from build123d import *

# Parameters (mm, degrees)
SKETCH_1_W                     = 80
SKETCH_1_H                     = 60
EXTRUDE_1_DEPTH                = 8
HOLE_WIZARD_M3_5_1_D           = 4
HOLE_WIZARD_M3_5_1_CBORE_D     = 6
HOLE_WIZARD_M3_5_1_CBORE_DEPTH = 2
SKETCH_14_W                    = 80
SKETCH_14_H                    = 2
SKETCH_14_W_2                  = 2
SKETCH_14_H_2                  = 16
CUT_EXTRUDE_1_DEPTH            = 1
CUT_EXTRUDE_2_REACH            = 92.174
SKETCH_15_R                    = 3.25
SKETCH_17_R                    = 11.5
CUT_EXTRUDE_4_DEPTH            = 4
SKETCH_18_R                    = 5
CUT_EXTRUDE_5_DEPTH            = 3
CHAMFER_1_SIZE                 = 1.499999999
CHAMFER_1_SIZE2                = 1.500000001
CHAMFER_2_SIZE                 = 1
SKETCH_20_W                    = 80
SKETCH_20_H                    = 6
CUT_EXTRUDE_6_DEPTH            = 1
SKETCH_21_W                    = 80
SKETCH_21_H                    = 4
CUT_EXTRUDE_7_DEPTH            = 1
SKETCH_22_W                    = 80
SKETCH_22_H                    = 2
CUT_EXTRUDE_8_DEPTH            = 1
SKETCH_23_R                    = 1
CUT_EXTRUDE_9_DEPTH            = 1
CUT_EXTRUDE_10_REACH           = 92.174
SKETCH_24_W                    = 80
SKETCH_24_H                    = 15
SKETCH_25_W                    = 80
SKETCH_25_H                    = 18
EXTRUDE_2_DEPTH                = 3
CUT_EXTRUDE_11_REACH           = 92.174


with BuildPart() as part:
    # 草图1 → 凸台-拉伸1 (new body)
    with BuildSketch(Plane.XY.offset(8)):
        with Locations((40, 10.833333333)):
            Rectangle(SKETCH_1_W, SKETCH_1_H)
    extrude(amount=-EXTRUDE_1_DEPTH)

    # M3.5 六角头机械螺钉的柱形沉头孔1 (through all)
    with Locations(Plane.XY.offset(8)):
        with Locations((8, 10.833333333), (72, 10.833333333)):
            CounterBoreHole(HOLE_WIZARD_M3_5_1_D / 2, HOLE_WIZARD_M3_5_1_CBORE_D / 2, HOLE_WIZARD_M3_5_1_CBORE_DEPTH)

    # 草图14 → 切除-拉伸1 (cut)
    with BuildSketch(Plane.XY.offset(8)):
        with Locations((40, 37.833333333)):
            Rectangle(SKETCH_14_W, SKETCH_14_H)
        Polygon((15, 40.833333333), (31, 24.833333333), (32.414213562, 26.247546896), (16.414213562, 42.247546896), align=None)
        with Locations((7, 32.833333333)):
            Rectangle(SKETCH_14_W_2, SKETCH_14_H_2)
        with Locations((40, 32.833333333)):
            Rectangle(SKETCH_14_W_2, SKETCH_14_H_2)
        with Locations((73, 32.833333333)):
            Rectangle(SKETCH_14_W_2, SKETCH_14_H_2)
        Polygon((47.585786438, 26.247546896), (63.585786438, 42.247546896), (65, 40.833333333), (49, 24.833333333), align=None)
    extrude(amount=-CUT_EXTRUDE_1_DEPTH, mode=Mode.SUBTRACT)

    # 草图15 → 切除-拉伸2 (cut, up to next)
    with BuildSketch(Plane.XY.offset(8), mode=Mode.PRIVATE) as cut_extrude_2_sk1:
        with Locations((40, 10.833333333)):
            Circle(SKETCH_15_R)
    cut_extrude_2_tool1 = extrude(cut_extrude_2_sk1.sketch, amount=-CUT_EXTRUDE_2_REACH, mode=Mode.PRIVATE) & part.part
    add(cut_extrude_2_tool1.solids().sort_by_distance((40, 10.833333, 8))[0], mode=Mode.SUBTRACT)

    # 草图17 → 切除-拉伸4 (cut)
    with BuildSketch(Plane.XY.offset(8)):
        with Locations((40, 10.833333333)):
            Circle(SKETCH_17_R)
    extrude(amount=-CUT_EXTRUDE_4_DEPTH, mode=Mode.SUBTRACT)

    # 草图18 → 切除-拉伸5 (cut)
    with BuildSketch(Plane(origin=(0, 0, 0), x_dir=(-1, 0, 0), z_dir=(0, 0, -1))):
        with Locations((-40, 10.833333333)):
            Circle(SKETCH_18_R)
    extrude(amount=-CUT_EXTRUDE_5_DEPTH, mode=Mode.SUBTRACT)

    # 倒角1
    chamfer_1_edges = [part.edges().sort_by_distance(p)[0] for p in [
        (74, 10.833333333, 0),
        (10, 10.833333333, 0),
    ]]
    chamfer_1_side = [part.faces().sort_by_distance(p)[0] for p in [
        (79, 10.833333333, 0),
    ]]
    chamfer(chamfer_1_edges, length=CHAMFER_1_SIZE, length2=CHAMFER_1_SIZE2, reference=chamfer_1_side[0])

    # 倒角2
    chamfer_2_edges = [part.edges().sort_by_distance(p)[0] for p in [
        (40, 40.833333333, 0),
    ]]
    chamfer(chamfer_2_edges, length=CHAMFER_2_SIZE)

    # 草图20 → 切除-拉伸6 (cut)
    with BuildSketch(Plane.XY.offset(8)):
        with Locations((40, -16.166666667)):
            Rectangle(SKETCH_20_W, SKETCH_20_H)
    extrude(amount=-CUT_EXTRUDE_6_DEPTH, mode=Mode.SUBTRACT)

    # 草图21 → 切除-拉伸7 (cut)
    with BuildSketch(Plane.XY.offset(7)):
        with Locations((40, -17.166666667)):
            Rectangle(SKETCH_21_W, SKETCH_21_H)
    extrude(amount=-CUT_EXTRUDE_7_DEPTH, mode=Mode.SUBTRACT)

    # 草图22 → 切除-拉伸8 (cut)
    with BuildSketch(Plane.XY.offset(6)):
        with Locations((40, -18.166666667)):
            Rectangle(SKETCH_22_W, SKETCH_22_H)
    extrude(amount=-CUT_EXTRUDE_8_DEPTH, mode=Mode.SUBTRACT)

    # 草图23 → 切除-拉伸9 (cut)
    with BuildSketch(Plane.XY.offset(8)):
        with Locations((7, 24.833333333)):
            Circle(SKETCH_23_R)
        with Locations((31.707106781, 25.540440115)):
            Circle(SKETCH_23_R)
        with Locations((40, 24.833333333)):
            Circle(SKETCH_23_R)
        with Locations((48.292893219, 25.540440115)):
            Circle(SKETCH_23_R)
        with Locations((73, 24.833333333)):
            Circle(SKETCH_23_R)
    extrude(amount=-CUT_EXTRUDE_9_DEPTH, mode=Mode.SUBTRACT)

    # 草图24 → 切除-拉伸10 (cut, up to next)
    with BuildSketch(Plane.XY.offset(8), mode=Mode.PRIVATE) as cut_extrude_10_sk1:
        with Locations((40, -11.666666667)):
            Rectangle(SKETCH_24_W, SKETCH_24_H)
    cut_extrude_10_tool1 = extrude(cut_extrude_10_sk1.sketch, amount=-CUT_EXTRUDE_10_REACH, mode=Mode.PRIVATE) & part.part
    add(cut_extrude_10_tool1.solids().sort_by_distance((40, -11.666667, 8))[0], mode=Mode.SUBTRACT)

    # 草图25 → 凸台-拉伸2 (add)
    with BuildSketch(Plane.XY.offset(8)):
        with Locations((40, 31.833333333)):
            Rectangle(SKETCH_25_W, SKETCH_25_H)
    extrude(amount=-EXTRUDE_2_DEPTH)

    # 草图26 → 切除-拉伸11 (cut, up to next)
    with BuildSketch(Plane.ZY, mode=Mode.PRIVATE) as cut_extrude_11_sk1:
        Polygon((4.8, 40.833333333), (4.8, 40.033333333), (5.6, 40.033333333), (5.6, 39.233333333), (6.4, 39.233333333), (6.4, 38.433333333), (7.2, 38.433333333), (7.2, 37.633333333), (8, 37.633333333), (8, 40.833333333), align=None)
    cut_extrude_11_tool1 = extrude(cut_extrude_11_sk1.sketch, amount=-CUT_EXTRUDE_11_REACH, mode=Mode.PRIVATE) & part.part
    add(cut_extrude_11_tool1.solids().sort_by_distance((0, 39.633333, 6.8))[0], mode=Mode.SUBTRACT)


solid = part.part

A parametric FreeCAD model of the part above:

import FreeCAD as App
import Part
import Sketcher
from FreeCAD import Vector


def edges_at(feature, points):
    """Names of the edges that pass closest to the given points."""
    edges = feature.Shape.Edges
    near = lambda p: min(range(len(edges)), key=lambda i: edges[i].distToShape(Part.Vertex(*p))[0])
    return sorted({f"Edge{near(p) + 1}" for p in points})


def add_polygon(sketch, points):
    """Adds a closed chain of lines whose ends are joined by coincident constraints."""
    first, n = sketch.GeometryCount, len(points)
    for a, b in zip(points, points[1:] + points[:1]):
        sketch.addGeometry(Part.LineSegment(App.Vector(*a, 0), App.Vector(*b, 0)), False)
    for i in range(n):
        sketch.addConstraint(Sketcher.Constraint("Coincident", first + i, 2, first + (i + 1) % n, 1))

doc = App.newDocument("Part")
body = doc.addObject("PartDesign::Body", "Body")

sketch1 = body.newObject("Sketcher::SketchObject", "Sketch")
sketch1.AttachmentSupport = (doc.getObject("XY_Plane"), [""])
sketch1.MapMode = "FlatFace"
sketch1.AttachmentOffset = App.Placement(Vector(0, 0, 8), App.Rotation())
add_polygon(sketch1, [(0, 40.833333), (0, -19.166667), (80, -19.166667), (80, 40.833333)])
sketch1.addConstraint(Sketcher.Constraint("Vertical", 0))
sketch1.addConstraint(Sketcher.Constraint("Horizontal", 1))
sketch1.addConstraint(Sketcher.Constraint("Vertical", 2))
sketch1.addConstraint(Sketcher.Constraint("Horizontal", 3))
sketch1.addConstraint(Sketcher.Constraint("PointOnObject", 0, 2, -2))
sketch1.addConstraint(Sketcher.Constraint("DistanceX", 1, 1, 1, 2, 80.0))
sketch1.addConstraint(Sketcher.Constraint("DistanceY", 0, 2, 0, 1, 60.0))
sketch1.addConstraint(Sketcher.Constraint("DistanceY", 0, 2, -1, 1, 19.166667))
pad1 = body.newObject("PartDesign::Pad", "Pad")
pad1.Profile = sketch1
pad1.Length = 8
pad1.Reversed = True

sketch2 = body.newObject("Sketcher::SketchObject", "Sketch001")
sketch2.AttachmentSupport = (doc.getObject("XY_Plane"), [""])
sketch2.MapMode = "FlatFace"
sketch2.AttachmentOffset = App.Placement(Vector(0, 0, 8), App.Rotation())
sketch2.addGeometry(Part.Circle(Vector(8, 10.833333, 0), Vector(0, 0, 1), 2), False)
sketch2.addGeometry(Part.Circle(Vector(72, 10.833333, 0), Vector(0, 0, 1), 2), False)
sketch2.addConstraint(Sketcher.Constraint("Equal", 0, 1))
sketch2.addConstraint(Sketcher.Constraint("Horizontal", 0, 3, 1, 3))
sketch2.addConstraint(Sketcher.Constraint("Diameter", 0, 4.0))
sketch2.addConstraint(Sketcher.Constraint("DistanceX", -1, 1, 0, 3, 8.0))
sketch2.addConstraint(Sketcher.Constraint("DistanceX", -1, 1, 1, 3, 72.0))
sketch2.addConstraint(Sketcher.Constraint("DistanceY", -1, 1, 0, 3, 10.833333))
doc.recompute()
hole = body.newObject("PartDesign::Hole", "Hole")
hole.Profile = sketch2
hole.ThreadType = "None"
hole.Diameter = 4
hole.DepthType = "ThroughAll"
hole.HoleCutType = "Counterbore"
hole.HoleCutDiameter = 6
hole.HoleCutDepth = 2

sketch3 = body.newObject("Sketcher::SketchObject", "Sketch002")
sketch3.AttachmentSupport = (doc.getObject("XY_Plane"), [""])
sketch3.MapMode = "FlatFace"
sketch3.AttachmentOffset = App.Placement(Vector(0, 0, 8), App.Rotation())
add_polygon(sketch3, [(0, 38.833333), (0, 36.833333), (6, 36.833333), (6, 24.833333), (8, 24.833333), (8, 36.833333), (19, 36.833333), (31, 24.833333), (32.414214, 26.247547), (21.828427, 36.833333), (39, 36.833333), (39, 24.833333), (41, 24.833333), (41, 36.833333), (58.171573, 36.833333), (47.585786, 26.247547), (49, 24.833333), (61, 36.833333), (72, 36.833333), (72, 24.833333), (74, 24.833333), (74, 36.833333), (80, 36.833333), (80, 38.833333), (74, 38.833333), (74, 40.833333), (72, 40.833333), (72, 38.833333), (63, 38.833333), (65, 40.833333), (63.585786, 42.247547), (60.171573, 38.833333), (41, 38.833333), (41, 40.833333), (39, 40.833333), (39, 38.833333), (19.828427, 38.833333), (16.414214, 42.247547), (15, 40.833333), (17, 38.833333), (8, 38.833333), (8, 40.833333), (6, 40.833333), (6, 38.833333)])
sketch3.addConstraint(Sketcher.Constraint("Vertical", 0))
sketch3.addConstraint(Sketcher.Constraint("Horizontal", 1))
sketch3.addConstraint(Sketcher.Constraint("Vertical", 2))
sketch3.addConstraint(Sketcher.Constraint("Horizontal", 3))
sketch3.addConstraint(Sketcher.Constraint("Vertical", 4))
sketch3.addConstraint(Sketcher.Constraint("Horizontal", 5))
sketch3.addConstraint(Sketcher.Constraint("Horizontal", 9))
sketch3.addConstraint(Sketcher.Constraint("Vertical", 10))
sketch3.addConstraint(Sketcher.Constraint("Horizontal", 11))
sketch3.addConstraint(Sketcher.Constraint("Vertical", 12))
sketch3.addConstraint(Sketcher.Constraint("Horizontal", 13))
sketch3.addConstraint(Sketcher.Constraint("Horizontal", 17))
sketch3.addConstraint(Sketcher.Constraint("Vertical", 18))
sketch3.addConstraint(Sketcher.Constraint("Horizontal", 19))
sketch3.addConstraint(Sketcher.Constraint("Vertical", 20))
sketch3.addConstraint(Sketcher.Constraint("Horizontal", 21))
sketch3.addConstraint(Sketcher.Constraint("Vertical", 22))
sketch3.addConstraint(Sketcher.Constraint("Horizontal", 23))
sketch3.addConstraint(Sketcher.Constraint("Vertical", 24))
sketch3.addConstraint(Sketcher.Constraint("Horizontal", 25))
sketch3.addConstraint(Sketcher.Constraint("Vertical", 26))
sketch3.addConstraint(Sketcher.Constraint("Horizontal", 27))
sketch3.addConstraint(Sketcher.Constraint("Horizontal", 31))
sketch3.addConstraint(Sketcher.Constraint("Vertical", 32))
sketch3.addConstraint(Sketcher.Constraint("Horizontal", 33))
sketch3.addConstraint(Sketcher.Constraint("Vertical", 34))
sketch3.addConstraint(Sketcher.Constraint("Horizontal", 35))
sketch3.addConstraint(Sketcher.Constraint("Horizontal", 39))
sketch3.addConstraint(Sketcher.Constraint("Vertical", 40))
sketch3.addConstraint(Sketcher.Constraint("Horizontal", 41))
sketch3.addConstraint(Sketcher.Constraint("Vertical", 42))
sketch3.addConstraint(Sketcher.Constraint("Horizontal", 43))
sketch3.addConstraint(Sketcher.Constraint("PointOnObject", 0, 2, -2))
sketch3.addConstraint(Sketcher.Constraint("Perpendicular", 6, 7))
sketch3.addConstraint(Sketcher.Constraint("Perpendicular", 7, 8))
sketch3.addConstraint(Sketcher.Constraint("Perpendicular", 8, 14))
sketch3.addConstraint(Sketcher.Constraint("Perpendicular", 14, 15))
sketch3.addConstraint(Sketcher.Constraint("Perpendicular", 15, 16))
sketch3.addConstraint(Sketcher.Constraint("Parallel", 16, 28))
sketch3.addConstraint(Sketcher.Constraint("Perpendicular", 28, 29))
sketch3.addConstraint(Sketcher.Constraint("Perpendicular", 29, 30))
sketch3.addConstraint(Sketcher.Constraint("Perpendicular", 30, 36))
sketch3.addConstraint(Sketcher.Constraint("Perpendicular", 36, 37))
sketch3.addConstraint(Sketcher.Constraint("Perpendicular", 37, 38))
sketch3.addConstraint(Sketcher.Constraint("Horizontal", 1, 2, 4, 2))
sketch3.addConstraint(Sketcher.Constraint("Horizontal", 3, 2, 6, 2))
sketch3.addConstraint(Sketcher.Constraint("Horizontal", 5, 2, 8, 2))
sketch3.addConstraint(Sketcher.Constraint("Horizontal", 6, 2, 10, 2))
sketch3.addConstraint(Sketcher.Constraint("Horizontal", 9, 2, 12, 2))
sketch3.addConstraint(Sketcher.Constraint("Horizontal", 7, 2, 14, 2))
sketch3.addConstraint(Sketcher.Constraint("Horizontal", 11, 2, 15, 2))
sketch3.addConstraint(Sketcher.Constraint("Horizontal", 13, 2, 16, 2))
sketch3.addConstraint(Sketcher.Constraint("Horizontal", 15, 2, 18, 2))
sketch3.addConstraint(Sketcher.Constraint("Horizontal", 17, 2, 20, 2))
sketch3.addConstraint(Sketcher.Constraint("Horizontal", 23, 2, 26, 2))
sketch3.addConstraint(Sketcher.Constraint("Horizontal", 25, 2, 28, 2))
sketch3.addConstraint(Sketcher.Constraint("Horizontal", 27, 2, 30, 2))
sketch3.addConstraint(Sketcher.Constraint("Horizontal", 28, 2, 32, 2))
sketch3.addConstraint(Sketcher.Constraint("Horizontal", 31, 2, 34, 2))
sketch3.addConstraint(Sketcher.Constraint("Horizontal", 29, 2, 36, 2))
sketch3.addConstraint(Sketcher.Constraint("Horizontal", 33, 2, 37, 2))
sketch3.addConstraint(Sketcher.Constraint("Horizontal", 35, 2, 38, 2))
sketch3.addConstraint(Sketcher.Constraint("Horizontal", 37, 2, 40, 2))
sketch3.addConstraint(Sketcher.Constraint("Horizontal", 39, 2, 42, 2))
sketch3.addConstraint(Sketcher.Constraint("Vertical", 20, 2, 23, 2))
sketch3.addConstraint(Sketcher.Constraint("Vertical", 18, 2, 25, 2))
sketch3.addConstraint(Sketcher.Constraint("Vertical", 12, 2, 31, 2))
sketch3.addConstraint(Sketcher.Constraint("Vertical", 10, 2, 33, 2))
sketch3.addConstraint(Sketcher.Constraint("Vertical", 4, 2, 39, 2))
sketch3.addConstraint(Sketcher.Constraint("Vertical", 2, 2, 41, 2))
sketch3.addConstraint(Sketcher.Constraint("Equal", 3, 11))
sketch3.addConstraint(Sketcher.Constraint("Equal", 9, 13))
sketch3.addConstraint(Sketcher.Constraint("Equal", 5, 17))
sketch3.addConstraint(Sketcher.Constraint("Equal", 11, 19))
sketch3.addConstraint(Sketcher.Constraint("Equal", 1, 21))
sketch3.addConstraint(Sketcher.Constraint("Equal", 31, 35))
sketch3.addConstraint(Sketcher.Constraint("Equal", 41, 0))
sketch3.addConstraint(Sketcher.Constraint("Equal", 22, 24))
sketch3.addConstraint(Sketcher.Constraint("Equal", 8, 14))
sketch3.addConstraint(Sketcher.Constraint("Equal", 15, 29))
sketch3.addConstraint(Sketcher.Constraint("DistanceX", 1, 1, 1, 2, 6.0))
sketch3.addConstraint(Sketcher.Constraint("DistanceX", 3, 1, 3, 2, 2.0))
sketch3.addConstraint(Sketcher.Constraint("DistanceX", 5, 1, 5, 2, 11.0))
sketch3.addConstraint(Sketcher.Constraint("DistanceX", 27, 2, 27, 1, 9.0))
sketch3.addConstraint(Sketcher.Constraint("DistanceY", 2, 2, 2, 1, 12.0))
sketch3.addConstraint(Sketcher.Constraint("Distance", 7, 2.0))
sketch3.addConstraint(Sketcher.Constraint("DistanceX", -1, 1, 9, 2, 39.0))
sketch3.addConstraint(Sketcher.Constraint("DistanceY", -1, 1, 0, 2, 36.833333))
pocket1 = body.newObject("PartDesign::Pocket", "Pocket")
pocket1.Profile = sketch3
pocket1.Length = 1

sketch4 = body.newObject("Sketcher::SketchObject", "Sketch003")
sketch4.AttachmentSupport = (doc.getObject("XY_Plane"), [""])
sketch4.MapMode = "FlatFace"
sketch4.AttachmentOffset = App.Placement(Vector(0, 0, 8), App.Rotation())
sketch4.addGeometry(Part.Circle(Vector(40, 10.833333, 0), Vector(0, 0, 1), 3.25), False)
sketch4.addConstraint(Sketcher.Constraint("Diameter", 0, 6.5))
sketch4.addConstraint(Sketcher.Constraint("DistanceX", -1, 1, 0, 3, 40.0))
sketch4.addConstraint(Sketcher.Constraint("DistanceY", -1, 1, 0, 3, 10.833333))
pocket2 = body.newObject("PartDesign::Pocket", "Pocket001")
pocket2.Profile = sketch4
pocket2.Type = "UpToFirst"

sketch5 = body.newObject("Sketcher::SketchObject", "Sketch004")
sketch5.AttachmentSupport = (doc.getObject("XY_Plane"), [""])
sketch5.MapMode = "FlatFace"
sketch5.AttachmentOffset = App.Placement(Vector(0, 0, 8), App.Rotation())
sketch5.addGeometry(Part.Circle(Vector(40, 10.833333, 0), Vector(0, 0, 1), 11.5), False)
sketch5.addConstraint(Sketcher.Constraint("Diameter", 0, 23.0))
sketch5.addConstraint(Sketcher.Constraint("DistanceX", -1, 1, 0, 3, 40.0))
sketch5.addConstraint(Sketcher.Constraint("DistanceY", -1, 1, 0, 3, 10.833333))
pocket3 = body.newObject("PartDesign::Pocket", "Pocket002")
pocket3.Profile = sketch5
pocket3.Length = 4

sketch6 = body.newObject("Sketcher::SketchObject", "Sketch005")
sketch6.AttachmentSupport = (doc.getObject("XY_Plane"), [""])
sketch6.MapMode = "FlatFace"
sketch6.addGeometry(Part.Circle(Vector(40, 10.833333, 0), Vector(0, 0, 1), 5), False)
sketch6.addConstraint(Sketcher.Constraint("Diameter", 0, 10.0))
sketch6.addConstraint(Sketcher.Constraint("DistanceX", -1, 1, 0, 3, 40.0))
sketch6.addConstraint(Sketcher.Constraint("DistanceY", -1, 1, 0, 3, 10.833333))
pocket4 = body.newObject("PartDesign::Pocket", "Pocket003")
pocket4.Profile = sketch6
pocket4.Length = 3
pocket4.Reversed = True
doc.recompute()

chamfer = body.newObject("PartDesign::Chamfer", "Chamfer")
chamfer.Base = (pocket4, edges_at(pocket4, [(74, 10.833, 0), (10, 10.833, 0)]))
chamfer.ChamferType = "Two distances"
chamfer.Size = 1.5
chamfer.Size2 = 1.5
doc.recompute()

chamfer2 = body.newObject("PartDesign::Chamfer", "Chamfer001")
chamfer2.Base = (chamfer, edges_at(chamfer, [(40, 40.833, 0)]))
chamfer2.Size = 1

sketch7 = body.newObject("Sketcher::SketchObject", "Sketch006")
sketch7.AttachmentSupport = (doc.getObject("XY_Plane"), [""])
sketch7.MapMode = "FlatFace"
sketch7.AttachmentOffset = App.Placement(Vector(0, 0, 8), App.Rotation())
add_polygon(sketch7, [(0, -13.166667), (0, -19.166667), (80, -19.166667), (80, -13.166667)])
sketch7.addConstraint(Sketcher.Constraint("Vertical", 0))
sketch7.addConstraint(Sketcher.Constraint("Horizontal", 1))
sketch7.addConstraint(Sketcher.Constraint("Vertical", 2))
sketch7.addConstraint(Sketcher.Constraint("Horizontal", 3))
sketch7.addConstraint(Sketcher.Constraint("PointOnObject", 0, 2, -2))
sketch7.addConstraint(Sketcher.Constraint("DistanceX", 1, 1, 1, 2, 80.0))
sketch7.addConstraint(Sketcher.Constraint("DistanceY", 0, 2, 0, 1, 6.0))
sketch7.addConstraint(Sketcher.Constraint("DistanceY", 0, 2, -1, 1, 19.166667))
pocket5 = body.newObject("PartDesign::Pocket", "Pocket004")
pocket5.Profile = sketch7
pocket5.Length = 1

sketch8 = body.newObject("Sketcher::SketchObject", "Sketch007")
sketch8.AttachmentSupport = (doc.getObject("XY_Plane"), [""])
sketch8.MapMode = "FlatFace"
sketch8.AttachmentOffset = App.Placement(Vector(0, 0, 7), App.Rotation())
add_polygon(sketch8, [(0, -15.166667), (0, -19.166667), (80, -19.166667), (80, -15.166667)])
sketch8.addConstraint(Sketcher.Constraint("Vertical", 0))
sketch8.addConstraint(Sketcher.Constraint("Horizontal", 1))
sketch8.addConstraint(Sketcher.Constraint("Vertical", 2))
sketch8.addConstraint(Sketcher.Constraint("Horizontal", 3))
sketch8.addConstraint(Sketcher.Constraint("PointOnObject", 0, 2, -2))
sketch8.addConstraint(Sketcher.Constraint("DistanceX", 1, 1, 1, 2, 80.0))
sketch8.addConstraint(Sketcher.Constraint("DistanceY", 0, 2, 0, 1, 4.0))
sketch8.addConstraint(Sketcher.Constraint("DistanceY", 0, 2, -1, 1, 19.166667))
pocket6 = body.newObject("PartDesign::Pocket", "Pocket005")
pocket6.Profile = sketch8
pocket6.Length = 1

sketch9 = body.newObject("Sketcher::SketchObject", "Sketch008")
sketch9.AttachmentSupport = (doc.getObject("XY_Plane"), [""])
sketch9.MapMode = "FlatFace"
sketch9.AttachmentOffset = App.Placement(Vector(0, 0, 6), App.Rotation())
add_polygon(sketch9, [(0, -17.166667), (0, -19.166667), (80, -19.166667), (80, -17.166667)])
sketch9.addConstraint(Sketcher.Constraint("Vertical", 0))
sketch9.addConstraint(Sketcher.Constraint("Horizontal", 1))
sketch9.addConstraint(Sketcher.Constraint("Vertical", 2))
sketch9.addConstraint(Sketcher.Constraint("Horizontal", 3))
sketch9.addConstraint(Sketcher.Constraint("PointOnObject", 0, 2, -2))
sketch9.addConstraint(Sketcher.Constraint("DistanceX", 1, 1, 1, 2, 80.0))
sketch9.addConstraint(Sketcher.Constraint("DistanceY", 0, 2, 0, 1, 2.0))
sketch9.addConstraint(Sketcher.Constraint("DistanceY", 0, 2, -1, 1, 19.166667))
pocket7 = body.newObject("PartDesign::Pocket", "Pocket006")
pocket7.Profile = sketch9
pocket7.Length = 1

sketch10 = body.newObject("Sketcher::SketchObject", "Sketch009")
sketch10.AttachmentSupport = (doc.getObject("XY_Plane"), [""])
sketch10.MapMode = "FlatFace"
sketch10.AttachmentOffset = App.Placement(Vector(0, 0, 8), App.Rotation())
sketch10.addGeometry(Part.Circle(Vector(7, 24.833333, 0), Vector(0, 0, 1), 1), False)
sketch10.addGeometry(Part.Circle(Vector(31.707107, 25.54044, 0), Vector(0, 0, 1), 1), False)
sketch10.addGeometry(Part.Circle(Vector(40, 24.833333, 0), Vector(0, 0, 1), 1), False)
sketch10.addGeometry(Part.Circle(Vector(48.292893, 25.54044, 0), Vector(0, 0, 1), 1), False)
sketch10.addGeometry(Part.Circle(Vector(73, 24.833333, 0), Vector(0, 0, 1), 1), False)
sketch10.addConstraint(Sketcher.Constraint("Equal", 0, 1))
sketch10.addConstraint(Sketcher.Constraint("Equal", 1, 2))
sketch10.addConstraint(Sketcher.Constraint("Equal", 2, 3))
sketch10.addConstraint(Sketcher.Constraint("Equal", 3, 4))
sketch10.addConstraint(Sketcher.Constraint("Horizontal", 0, 3, 2, 3))
sketch10.addConstraint(Sketcher.Constraint("Horizontal", 1, 3, 3, 3))
sketch10.addConstraint(Sketcher.Constraint("Horizontal", 2, 3, 4, 3))
sketch10.addConstraint(Sketcher.Constraint("Diameter", 0, 2.0))
sketch10.addConstraint(Sketcher.Constraint("DistanceX", -1, 1, 0, 3, 7.0))
sketch10.addConstraint(Sketcher.Constraint("DistanceX", -1, 1, 2, 3, 40.0))
sketch10.addConstraint(Sketcher.Constraint("DistanceX", -1, 1, 4, 3, 73.0))
sketch10.addConstraint(Sketcher.Constraint("DistanceY", -1, 1, 1, 3, 25.54044))
sketch10.addConstraint(Sketcher.Constraint("DistanceY", -1, 1, 0, 3, 24.833333))
sketch10.addConstraint(Sketcher.Constraint("DistanceX", -1, 1, 1, 3, 31.707107))
sketch10.addConstraint(Sketcher.Constraint("DistanceX", -1, 1, 3, 3, 48.292893))
pocket8 = body.newObject("PartDesign::Pocket", "Pocket007")
pocket8.Profile = sketch10
pocket8.Length = 1

sketch11 = body.newObject("Sketcher::SketchObject", "Sketch010")
sketch11.AttachmentSupport = (doc.getObject("XY_Plane"), [""])
sketch11.MapMode = "FlatFace"
sketch11.AttachmentOffset = App.Placement(Vector(0, 0, 8), App.Rotation())
add_polygon(sketch11, [(0, -4.166667), (0, -19.166667), (80, -19.166667), (80, -4.166667)])
sketch11.addConstraint(Sketcher.Constraint("Vertical", 0))
sketch11.addConstraint(Sketcher.Constraint("Horizontal", 1))
sketch11.addConstraint(Sketcher.Constraint("Vertical", 2))
sketch11.addConstraint(Sketcher.Constraint("Horizontal", 3))
sketch11.addConstraint(Sketcher.Constraint("PointOnObject", 0, 2, -2))
sketch11.addConstraint(Sketcher.Constraint("DistanceX", 1, 1, 1, 2, 80.0))
sketch11.addConstraint(Sketcher.Constraint("DistanceY", 0, 2, 0, 1, 15.0))
sketch11.addConstraint(Sketcher.Constraint("DistanceY", 0, 2, -1, 1, 19.166667))
pocket9 = body.newObject("PartDesign::Pocket", "Pocket008")
pocket9.Profile = sketch11
pocket9.Type = "UpToFirst"

sketch12 = body.newObject("Sketcher::SketchObject", "Sketch011")
sketch12.AttachmentSupport = (doc.getObject("XY_Plane"), [""])
sketch12.MapMode = "FlatFace"
sketch12.AttachmentOffset = App.Placement(Vector(0, 0, 8), App.Rotation())
add_polygon(sketch12, [(0, 40.833333), (0, 22.833333), (80, 22.833333), (80, 40.833333)])
sketch12.addConstraint(Sketcher.Constraint("Vertical", 0))
sketch12.addConstraint(Sketcher.Constraint("Horizontal", 1))
sketch12.addConstraint(Sketcher.Constraint("Vertical", 2))
sketch12.addConstraint(Sketcher.Constraint("Horizontal", 3))
sketch12.addConstraint(Sketcher.Constraint("PointOnObject", 0, 2, -2))
sketch12.addConstraint(Sketcher.Constraint("DistanceX", 1, 1, 1, 2, 80.0))
sketch12.addConstraint(Sketcher.Constraint("DistanceY", 0, 2, 0, 1, 18.0))
sketch12.addConstraint(Sketcher.Constraint("DistanceY", -1, 1, 0, 2, 22.833333))
pad2 = body.newObject("PartDesign::Pad", "Pad001")
pad2.Profile = sketch12
pad2.Length = 3
pad2.Reversed = True

sketch13 = body.newObject("Sketcher::SketchObject", "Sketch012")
sketch13.AttachmentSupport = (doc.getObject("YZ_Plane"), [""])
sketch13.MapMode = "FlatFace"
add_polygon(sketch13, [(40.833333, 4.8), (40.033333, 4.8), (40.033333, 5.6), (39.233333, 5.6), (39.233333, 6.4), (38.433333, 6.4), (38.433333, 7.2), (37.633333, 7.2), (37.633333, 8), (40.833333, 8)])
sketch13.addConstraint(Sketcher.Constraint("Horizontal", 0))
sketch13.addConstraint(Sketcher.Constraint("Vertical", 1))
sketch13.addConstraint(Sketcher.Constraint("Horizontal", 2))
sketch13.addConstraint(Sketcher.Constraint("Vertical", 3))
sketch13.addConstraint(Sketcher.Constraint("Horizontal", 4))
sketch13.addConstraint(Sketcher.Constraint("Vertical", 5))
sketch13.addConstraint(Sketcher.Constraint("Horizontal", 6))
sketch13.addConstraint(Sketcher.Constraint("Vertical", 7))
sketch13.addConstraint(Sketcher.Constraint("Horizontal", 8))
sketch13.addConstraint(Sketcher.Constraint("Vertical", 9))
sketch13.addConstraint(Sketcher.Constraint("Equal", 0, 2))
sketch13.addConstraint(Sketcher.Constraint("Equal", 2, 4))
sketch13.addConstraint(Sketcher.Constraint("Equal", 4, 6))
sketch13.addConstraint(Sketcher.Constraint("Equal", 6, 1))
sketch13.addConstraint(Sketcher.Constraint("Equal", 1, 3))
sketch13.addConstraint(Sketcher.Constraint("Equal", 3, 5))
sketch13.addConstraint(Sketcher.Constraint("Equal", 5, 7))
sketch13.addConstraint(Sketcher.Constraint("DistanceX", 0, 2, 0, 1, 0.8))
sketch13.addConstraint(Sketcher.Constraint("DistanceY", -1, 1, 7, 2, 8.0))
sketch13.addConstraint(Sketcher.Constraint("DistanceX", -1, 1, 0, 2, 40.033333))
pocket10 = body.newObject("PartDesign::Pocket", "Pocket009")
pocket10.Profile = sketch13
pocket10.Type = "UpToFirst"
pocket10.Reversed = True

doc.recompute()
